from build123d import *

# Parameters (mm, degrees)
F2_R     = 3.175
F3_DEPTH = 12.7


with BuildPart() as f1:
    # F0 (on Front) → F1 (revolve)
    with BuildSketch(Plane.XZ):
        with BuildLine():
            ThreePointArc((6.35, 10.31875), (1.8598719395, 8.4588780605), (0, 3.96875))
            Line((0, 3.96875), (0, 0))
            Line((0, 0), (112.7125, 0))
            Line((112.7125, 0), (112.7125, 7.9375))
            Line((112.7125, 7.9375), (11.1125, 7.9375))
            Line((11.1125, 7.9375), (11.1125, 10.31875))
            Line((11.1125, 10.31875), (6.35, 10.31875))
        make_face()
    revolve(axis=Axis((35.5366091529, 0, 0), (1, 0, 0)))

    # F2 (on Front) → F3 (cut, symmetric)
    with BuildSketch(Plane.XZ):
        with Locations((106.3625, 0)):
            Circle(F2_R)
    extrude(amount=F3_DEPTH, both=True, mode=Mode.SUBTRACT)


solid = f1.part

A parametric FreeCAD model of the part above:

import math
import FreeCAD as App
import Part
import Sketcher
Q = App.Units.Quantity

doc = App.newDocument("Part")
body = doc.addObject("PartDesign::Body", "Body")

# Sketch on XZ plane
sketch1 = doc.addObject("Sketcher::SketchObject", "Sketch")
body.addObject(sketch1)
sketch1.AttachmentSupport = (doc.XZ_Plane, [""])
sketch1.MapMode = "FlatFace"
sketch1.addGeometry([
    Part.ArcOfCircle(Part.Circle(App.Vector(6.3, 4, 0), App.Vector(0, 0, 1), 6.3), math.radians(90), math.radians(180)),  # 0
    Part.LineSegment(App.Vector(0, 4, 0), App.Vector(0, 0, 0)),  # 1
    Part.LineSegment(App.Vector(0, 0, 0), App.Vector(112.7, 0, 0)),  # 2
    Part.LineSegment(App.Vector(112.7, 0, 0), App.Vector(112.7, 7.9, 0)),  # 3
    Part.LineSegment(App.Vector(112.7, 7.9, 0), App.Vector(11.1, 7.9, 0)),  # 4
    Part.LineSegment(App.Vector(11.1, 7.9, 0), App.Vector(11.1, 10.3, 0)),  # 5
    Part.LineSegment(App.Vector(11.1, 10.3, 0), App.Vector(6.3, 10.3, 0)),  # 6
], False)
sketch1.addConstraint([
    Sketcher.Constraint("Tangent", 0, 2, 1, 1),
    Sketcher.Constraint("Coincident", 1, 2, 2, 1),
    Sketcher.Constraint("Coincident", 2, 2, 3, 1),
    Sketcher.Constraint("Coincident", 3, 2, 4, 1),
    Sketcher.Constraint("Coincident", 4, 2, 5, 1),
    Sketcher.Constraint("Coincident", 5, 2, 6, 1),
    Sketcher.Constraint("Tangent", 6, 2, 0, 1),
    Sketcher.Constraint("Vertical", 1),
    Sketcher.Constraint("Horizontal", 2),
    Sketcher.Constraint("Vertical", 3),
    Sketcher.Constraint("Horizontal", 4),
    Sketcher.Constraint("Vertical", 5),
    Sketcher.Constraint("Horizontal", 6),
    Sketcher.Constraint("Coincident", 1, 2, -1, 1),
    Sketcher.Constraint("DistanceX", 4, 2, 4, 1, Q("4 in")),
    Sketcher.Constraint("Radius", 0, Q("0.25 in")),
    Sketcher.Constraint("DistanceX", 2, 1, 2, 2, Q("4.4375 in")),
    Sketcher.Constraint("DistanceY", 1, 2, 1, 1, Q("0.15625 in")),
    Sketcher.Constraint("DistanceY", 3, 1, 3, 2, Q("0.3125 in")),
])
revolution = doc.addObject("PartDesign::Revolution", "Revolution")
body.addObject(revolution)
revolution.Profile = sketch1
revolution.ReferenceAxis = (sketch1, ["H_Axis"])
revolution.Angle = 360

# Sketch on XZ plane
sketch2 = doc.addObject("Sketcher::SketchObject", "Sketch001")
body.addObject(sketch2)
sketch2.AttachmentSupport = (doc.XZ_Plane, [""])
sketch2.MapMode = "FlatFace"
sketch2.addGeometry(Part.Circle(App.Vector(106.4, 0, 0), App.Vector(0, 0, 1), 3.2), False)
sketch2.addConstraint([
    Sketcher.Constraint("PointOnObject", 0, 3, -1),
    Sketcher.Constraint("Diameter", 0, Q("0.25 in")),
    Sketcher.Constraint("DistanceX", -1, 1, 0, 3, Q("4.1875 in")),
])
pocket1 = doc.addObject("PartDesign::Pocket", "Pocket")
body.addObject(pocket1)
pocket1.Profile = sketch2
pocket1.Length = Q("1 in")
pocket1.Midplane = True

doc.recompute()
